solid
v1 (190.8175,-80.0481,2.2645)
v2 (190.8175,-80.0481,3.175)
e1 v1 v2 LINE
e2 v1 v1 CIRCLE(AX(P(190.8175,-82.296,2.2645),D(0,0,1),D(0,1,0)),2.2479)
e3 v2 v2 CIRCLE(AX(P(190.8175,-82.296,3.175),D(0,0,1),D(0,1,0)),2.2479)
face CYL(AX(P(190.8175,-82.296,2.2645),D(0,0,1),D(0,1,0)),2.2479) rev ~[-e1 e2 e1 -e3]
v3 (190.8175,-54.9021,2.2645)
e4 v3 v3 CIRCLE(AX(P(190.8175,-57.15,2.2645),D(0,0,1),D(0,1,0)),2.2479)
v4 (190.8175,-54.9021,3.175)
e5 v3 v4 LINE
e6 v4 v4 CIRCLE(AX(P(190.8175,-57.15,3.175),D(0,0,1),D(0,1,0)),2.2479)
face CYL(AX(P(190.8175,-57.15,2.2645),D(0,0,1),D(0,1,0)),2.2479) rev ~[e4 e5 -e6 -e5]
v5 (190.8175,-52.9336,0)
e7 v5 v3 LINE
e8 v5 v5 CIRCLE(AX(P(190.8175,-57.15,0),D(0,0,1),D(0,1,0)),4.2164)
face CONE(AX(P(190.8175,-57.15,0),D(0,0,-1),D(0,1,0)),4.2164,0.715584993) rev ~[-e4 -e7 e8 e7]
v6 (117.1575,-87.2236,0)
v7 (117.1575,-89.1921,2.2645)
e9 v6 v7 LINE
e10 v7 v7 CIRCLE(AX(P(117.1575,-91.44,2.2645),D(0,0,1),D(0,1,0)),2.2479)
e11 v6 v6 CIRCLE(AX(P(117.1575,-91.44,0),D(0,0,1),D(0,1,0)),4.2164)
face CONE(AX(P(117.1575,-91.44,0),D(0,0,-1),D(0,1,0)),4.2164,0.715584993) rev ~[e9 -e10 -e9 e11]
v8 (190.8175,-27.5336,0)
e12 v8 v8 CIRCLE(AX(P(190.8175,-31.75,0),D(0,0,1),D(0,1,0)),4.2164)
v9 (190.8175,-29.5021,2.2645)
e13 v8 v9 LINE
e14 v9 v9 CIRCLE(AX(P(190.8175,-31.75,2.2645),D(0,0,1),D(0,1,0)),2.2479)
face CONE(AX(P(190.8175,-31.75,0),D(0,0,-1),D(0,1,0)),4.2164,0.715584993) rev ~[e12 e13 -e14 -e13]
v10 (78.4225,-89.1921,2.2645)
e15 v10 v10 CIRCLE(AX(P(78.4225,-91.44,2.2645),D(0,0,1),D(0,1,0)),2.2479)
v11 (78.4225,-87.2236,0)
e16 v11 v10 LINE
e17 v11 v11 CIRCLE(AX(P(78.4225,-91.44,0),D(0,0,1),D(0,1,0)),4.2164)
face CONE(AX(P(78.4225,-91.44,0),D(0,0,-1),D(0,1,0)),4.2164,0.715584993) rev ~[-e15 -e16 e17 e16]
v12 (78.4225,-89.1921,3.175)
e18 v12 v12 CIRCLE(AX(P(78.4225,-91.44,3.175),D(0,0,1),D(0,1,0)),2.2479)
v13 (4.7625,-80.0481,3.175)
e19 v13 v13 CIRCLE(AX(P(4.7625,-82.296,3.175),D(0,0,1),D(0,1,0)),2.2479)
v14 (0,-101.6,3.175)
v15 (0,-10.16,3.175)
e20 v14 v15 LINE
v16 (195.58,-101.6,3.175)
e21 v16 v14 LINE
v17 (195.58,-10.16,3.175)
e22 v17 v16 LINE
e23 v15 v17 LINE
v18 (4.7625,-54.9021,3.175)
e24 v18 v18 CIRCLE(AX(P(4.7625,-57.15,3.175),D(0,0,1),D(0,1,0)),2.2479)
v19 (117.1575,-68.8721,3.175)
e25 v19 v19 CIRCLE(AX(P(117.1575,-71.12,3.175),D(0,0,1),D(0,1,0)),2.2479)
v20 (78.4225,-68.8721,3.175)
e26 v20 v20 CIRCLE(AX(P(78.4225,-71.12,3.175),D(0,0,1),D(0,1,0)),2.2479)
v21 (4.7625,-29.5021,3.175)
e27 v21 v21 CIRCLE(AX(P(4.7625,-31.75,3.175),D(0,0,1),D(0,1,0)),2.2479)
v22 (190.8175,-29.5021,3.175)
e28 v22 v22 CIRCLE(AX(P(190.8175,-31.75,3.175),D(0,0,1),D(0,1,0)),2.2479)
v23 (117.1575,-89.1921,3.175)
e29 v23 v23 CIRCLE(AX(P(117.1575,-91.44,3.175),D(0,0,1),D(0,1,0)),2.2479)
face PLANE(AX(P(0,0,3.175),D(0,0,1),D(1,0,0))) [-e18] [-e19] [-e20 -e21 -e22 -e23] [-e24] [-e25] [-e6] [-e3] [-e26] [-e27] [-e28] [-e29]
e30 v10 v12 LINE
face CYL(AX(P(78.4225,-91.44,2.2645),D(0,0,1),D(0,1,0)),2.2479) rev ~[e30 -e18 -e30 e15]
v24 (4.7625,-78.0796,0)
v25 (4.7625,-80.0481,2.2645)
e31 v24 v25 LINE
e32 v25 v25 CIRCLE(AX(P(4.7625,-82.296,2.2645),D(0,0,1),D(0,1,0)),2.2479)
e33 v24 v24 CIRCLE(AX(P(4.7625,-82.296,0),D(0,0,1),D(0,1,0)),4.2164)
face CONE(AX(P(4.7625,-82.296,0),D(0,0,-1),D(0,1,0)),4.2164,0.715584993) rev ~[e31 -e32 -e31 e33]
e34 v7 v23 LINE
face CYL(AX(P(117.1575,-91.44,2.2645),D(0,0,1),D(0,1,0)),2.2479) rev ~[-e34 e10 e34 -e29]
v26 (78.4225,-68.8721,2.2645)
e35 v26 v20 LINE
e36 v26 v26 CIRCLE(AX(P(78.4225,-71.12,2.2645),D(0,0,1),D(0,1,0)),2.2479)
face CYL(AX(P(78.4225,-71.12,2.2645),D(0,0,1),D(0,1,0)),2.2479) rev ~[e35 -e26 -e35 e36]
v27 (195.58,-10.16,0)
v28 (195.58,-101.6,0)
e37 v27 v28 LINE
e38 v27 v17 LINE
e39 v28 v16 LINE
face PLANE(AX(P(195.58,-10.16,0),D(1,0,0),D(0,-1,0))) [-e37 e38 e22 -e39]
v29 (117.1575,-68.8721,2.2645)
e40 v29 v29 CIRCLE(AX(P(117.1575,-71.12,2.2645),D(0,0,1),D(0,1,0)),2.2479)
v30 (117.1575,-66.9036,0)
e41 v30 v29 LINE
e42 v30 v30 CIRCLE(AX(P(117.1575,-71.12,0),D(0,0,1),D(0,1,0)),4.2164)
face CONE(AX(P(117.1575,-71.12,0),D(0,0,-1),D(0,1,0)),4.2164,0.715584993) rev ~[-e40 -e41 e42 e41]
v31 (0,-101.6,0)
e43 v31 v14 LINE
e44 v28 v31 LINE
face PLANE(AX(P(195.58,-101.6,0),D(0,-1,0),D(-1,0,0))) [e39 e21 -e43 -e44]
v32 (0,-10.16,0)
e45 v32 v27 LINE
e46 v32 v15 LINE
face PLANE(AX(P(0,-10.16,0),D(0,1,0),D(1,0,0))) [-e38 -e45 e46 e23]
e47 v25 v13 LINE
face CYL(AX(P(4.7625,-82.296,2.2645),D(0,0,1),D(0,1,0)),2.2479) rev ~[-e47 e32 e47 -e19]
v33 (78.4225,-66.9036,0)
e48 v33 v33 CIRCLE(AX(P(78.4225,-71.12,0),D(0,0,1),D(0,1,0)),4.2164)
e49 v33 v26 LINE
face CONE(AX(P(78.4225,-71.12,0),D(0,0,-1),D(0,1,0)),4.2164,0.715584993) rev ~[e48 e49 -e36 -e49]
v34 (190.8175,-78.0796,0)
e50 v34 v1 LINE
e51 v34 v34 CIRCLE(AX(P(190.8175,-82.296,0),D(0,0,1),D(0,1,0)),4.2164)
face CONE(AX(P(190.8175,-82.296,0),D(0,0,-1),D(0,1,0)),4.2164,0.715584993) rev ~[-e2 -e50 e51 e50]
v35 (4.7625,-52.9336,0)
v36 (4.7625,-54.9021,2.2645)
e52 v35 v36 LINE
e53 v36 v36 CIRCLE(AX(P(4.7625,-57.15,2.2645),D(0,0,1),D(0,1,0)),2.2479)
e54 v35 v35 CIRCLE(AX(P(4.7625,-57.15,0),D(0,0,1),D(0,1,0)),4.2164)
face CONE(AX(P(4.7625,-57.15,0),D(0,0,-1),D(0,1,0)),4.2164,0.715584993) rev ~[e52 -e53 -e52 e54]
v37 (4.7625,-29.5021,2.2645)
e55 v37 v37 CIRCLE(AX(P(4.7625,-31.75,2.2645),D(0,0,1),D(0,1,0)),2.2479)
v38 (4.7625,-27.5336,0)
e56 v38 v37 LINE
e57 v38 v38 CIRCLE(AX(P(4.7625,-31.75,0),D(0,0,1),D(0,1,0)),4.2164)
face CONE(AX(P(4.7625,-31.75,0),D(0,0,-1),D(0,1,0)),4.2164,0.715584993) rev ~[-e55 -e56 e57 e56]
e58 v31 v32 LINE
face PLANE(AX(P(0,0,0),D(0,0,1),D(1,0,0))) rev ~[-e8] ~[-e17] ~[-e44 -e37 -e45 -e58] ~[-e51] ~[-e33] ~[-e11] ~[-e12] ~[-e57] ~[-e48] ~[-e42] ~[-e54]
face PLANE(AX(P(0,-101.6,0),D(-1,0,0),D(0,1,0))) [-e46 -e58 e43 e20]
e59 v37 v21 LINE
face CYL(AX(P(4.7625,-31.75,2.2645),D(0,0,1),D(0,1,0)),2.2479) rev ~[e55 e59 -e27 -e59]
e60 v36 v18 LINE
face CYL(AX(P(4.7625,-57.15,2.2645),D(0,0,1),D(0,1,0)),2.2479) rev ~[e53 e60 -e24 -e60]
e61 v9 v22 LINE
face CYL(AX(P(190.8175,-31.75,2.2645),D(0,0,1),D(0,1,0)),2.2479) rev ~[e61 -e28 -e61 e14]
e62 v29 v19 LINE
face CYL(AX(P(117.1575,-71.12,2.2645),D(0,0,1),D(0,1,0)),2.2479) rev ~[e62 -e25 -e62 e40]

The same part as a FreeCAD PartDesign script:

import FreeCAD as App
import Part
import Sketcher
from FreeCAD import Vector
Q = App.Units.Quantity


def add_polygon(sketch, points):
    """Adds a closed chain of lines whose ends are joined by coincident constraints."""
    first, n = sketch.GeometryCount, len(points)
    for a, b in zip(points, points[1:] + points[:1]):
        sketch.addGeometry(Part.LineSegment(App.Vector(*a, 0), App.Vector(*b, 0)), False)
    for i in range(n):
        sketch.addConstraint(Sketcher.Constraint("Coincident", first + i, 2, first + (i + 1) % n, 1))

doc = App.newDocument("Part")
body = doc.addObject("PartDesign::Body", "Body")

# Sketch on XY plane
sketch1 = body.newObject("Sketcher::SketchObject", "Sketch")
sketch1.AttachmentSupport = (doc.getObject("XY_Plane"), [""])
sketch1.MapMode = "FlatFace"
add_polygon(sketch1, [(196, -10), (0, -10), (0, -102), (196, -102)])  # lines 0-3
sketch1.addConstraint(Sketcher.Constraint("Horizontal", 0))
sketch1.addConstraint(Sketcher.Constraint("Vertical", 1))
sketch1.addConstraint(Sketcher.Constraint("Horizontal", 2))
sketch1.addConstraint(Sketcher.Constraint("Vertical", 3))
sketch1.addConstraint(Sketcher.Constraint("PointOnObject", 0, 2, -2))
sketch1.addConstraint(Sketcher.Constraint("DistanceX", 0, 2, 0, 1, Q("7.7 in")))
sketch1.addConstraint(Sketcher.Constraint("DistanceY", 1, 2, 1, 1, Q("3.6 in")))
sketch1.addConstraint(Sketcher.Constraint("DistanceY", 1, 2, -1, 1, Q("4 in")))
pad1 = body.newObject("PartDesign::Pad", "Pad")
pad1.Profile = sketch1
pad1.Length = Q("0.125 in")

# Sketch on XY plane
sketch2 = body.newObject("Sketcher::SketchObject", "Sketch001")
sketch2.AttachmentSupport = (doc.getObject("XY_Plane"), [""])
sketch2.MapMode = "FlatFace"
sketch2.addGeometry(Part.Circle(Vector(190.8, -31.8, 0), Vector(0, 0, 1), 2.2), False)
sketch2.addGeometry(Part.Circle(Vector(190.8, -57.1, 0), Vector(0, 0, 1), 2.2), False)
sketch2.addGeometry(Part.Circle(Vector(190.8, -82.3, 0), Vector(0, 0, 1), 2.2), False)
sketch2.addGeometry(Part.Circle(Vector(117.2, -71.1, 0), Vector(0, 0, 1), 2.2), False)
sketch2.addGeometry(Part.Circle(Vector(117.2, -91.4, 0), Vector(0, 0, 1), 2.2), False)
sketch2.addGeometry(Part.Circle(Vector(78.4, -71.1, 0), Vector(0, 0, 1), 2.2), False)
sketch2.addGeometry(Part.Circle(Vector(78.4, -91.4, 0), Vector(0, 0, 1), 2.2), False)
sketch2.addGeometry(Part.Circle(Vector(4.8, -82.3, 0), Vector(0, 0, 1), 2.2), False)
sketch2.addGeometry(Part.Circle(Vector(4.8, -57.1, 0), Vector(0, 0, 1), 2.2), False)
sketch2.addGeometry(Part.Circle(Vector(4.8, -31.8, 0), Vector(0, 0, 1), 2.2), False)
sketch2.addConstraint(Sketcher.Constraint("Equal", 0, 1))
sketch2.addConstraint(Sketcher.Constraint("Equal", 1, 2))
sketch2.addConstraint(Sketcher.Constraint("Equal", 2, 3))
sketch2.addConstraint(Sketcher.Constraint("Equal", 3, 4))
sketch2.addConstraint(Sketcher.Constraint("Equal", 4, 5))
sketch2.addConstraint(Sketcher.Constraint("Equal", 5, 6))
sketch2.addConstraint(Sketcher.Constraint("Equal", 6, 7))
sketch2.addConstraint(Sketcher.Constraint("Equal", 7, 8))
sketch2.addConstraint(Sketcher.Constraint("Equal", 8, 9))
sketch2.addConstraint(Sketcher.Constraint("Horizontal", 3, 3, 5, 3))
sketch2.addConstraint(Sketcher.Constraint("Horizontal", 4, 3, 6, 3))
sketch2.addConstraint(Sketcher.Constraint("Horizontal", 2, 3, 7, 3))
sketch2.addConstraint(Sketcher.Constraint("Horizontal", 1, 3, 8, 3))
sketch2.addConstraint(Sketcher.Constraint("Horizontal", 0, 3, 9, 3))
sketch2.addConstraint(Sketcher.Constraint("Vertical", 0, 3, 1, 3))
sketch2.addConstraint(Sketcher.Constraint("Vertical", 1, 3, 2, 3))
sketch2.addConstraint(Sketcher.Constraint("Vertical", 3, 3, 4, 3))
sketch2.addConstraint(Sketcher.Constraint("Vertical", 5, 3, 6, 3))
sketch2.addConstraint(Sketcher.Constraint("Vertical", 7, 3, 8, 3))
sketch2.addConstraint(Sketcher.Constraint("Vertical", 8, 3, 9, 3))
sketch2.addConstraint(Sketcher.Constraint("Diameter", 0, Q("0.177 in")))
sketch2.addConstraint(Sketcher.Constraint("DistanceY", 1, 3, 0, 3, Q("1 in")))
sketch2.addConstraint(Sketcher.Constraint("DistanceY", 3, 3, -1, 1, Q("2.8 in")))
sketch2.addConstraint(Sketcher.Constraint("DistanceY", 4, 3, -1, 1, Q("3.6 in")))
sketch2.addConstraint(Sketcher.Constraint("DistanceX", 3, 3, 2, 3, Q("2.9 in")))
sketch2.addConstraint(Sketcher.Constraint("DistanceX", 7, 3, 6, 3, Q("2.9 in")))
sketch2.addConstraint(Sketcher.Constraint("DistanceY", 0, 3, -1, 1, Q("1.25 in")))
sketch2.addConstraint(Sketcher.Constraint("DistanceY", 2, 3, -1, 1, Q("3.24 in")))
sketch2.addConstraint(Sketcher.Constraint("DistanceX", -1, 1, 7, 3, Q("0.1875 in")))
sketch2.addConstraint(Sketcher.Constraint("DistanceX", 5, 3, 3, 3, Q("1.525 in")))
doc.recompute()
hole = body.newObject("PartDesign::Hole", "Hole")
hole.Profile = sketch2
hole.ThreadType = "None"
hole.Diameter = Q("0.177 in")
hole.DepthType = "ThroughAll"
hole.HoleCutType = "Countersink"
hole.HoleCutDiameter = Q("0.332 in")
hole.HoleCutCountersinkAngle = 82
hole.Reversed = True

doc.recompute()
